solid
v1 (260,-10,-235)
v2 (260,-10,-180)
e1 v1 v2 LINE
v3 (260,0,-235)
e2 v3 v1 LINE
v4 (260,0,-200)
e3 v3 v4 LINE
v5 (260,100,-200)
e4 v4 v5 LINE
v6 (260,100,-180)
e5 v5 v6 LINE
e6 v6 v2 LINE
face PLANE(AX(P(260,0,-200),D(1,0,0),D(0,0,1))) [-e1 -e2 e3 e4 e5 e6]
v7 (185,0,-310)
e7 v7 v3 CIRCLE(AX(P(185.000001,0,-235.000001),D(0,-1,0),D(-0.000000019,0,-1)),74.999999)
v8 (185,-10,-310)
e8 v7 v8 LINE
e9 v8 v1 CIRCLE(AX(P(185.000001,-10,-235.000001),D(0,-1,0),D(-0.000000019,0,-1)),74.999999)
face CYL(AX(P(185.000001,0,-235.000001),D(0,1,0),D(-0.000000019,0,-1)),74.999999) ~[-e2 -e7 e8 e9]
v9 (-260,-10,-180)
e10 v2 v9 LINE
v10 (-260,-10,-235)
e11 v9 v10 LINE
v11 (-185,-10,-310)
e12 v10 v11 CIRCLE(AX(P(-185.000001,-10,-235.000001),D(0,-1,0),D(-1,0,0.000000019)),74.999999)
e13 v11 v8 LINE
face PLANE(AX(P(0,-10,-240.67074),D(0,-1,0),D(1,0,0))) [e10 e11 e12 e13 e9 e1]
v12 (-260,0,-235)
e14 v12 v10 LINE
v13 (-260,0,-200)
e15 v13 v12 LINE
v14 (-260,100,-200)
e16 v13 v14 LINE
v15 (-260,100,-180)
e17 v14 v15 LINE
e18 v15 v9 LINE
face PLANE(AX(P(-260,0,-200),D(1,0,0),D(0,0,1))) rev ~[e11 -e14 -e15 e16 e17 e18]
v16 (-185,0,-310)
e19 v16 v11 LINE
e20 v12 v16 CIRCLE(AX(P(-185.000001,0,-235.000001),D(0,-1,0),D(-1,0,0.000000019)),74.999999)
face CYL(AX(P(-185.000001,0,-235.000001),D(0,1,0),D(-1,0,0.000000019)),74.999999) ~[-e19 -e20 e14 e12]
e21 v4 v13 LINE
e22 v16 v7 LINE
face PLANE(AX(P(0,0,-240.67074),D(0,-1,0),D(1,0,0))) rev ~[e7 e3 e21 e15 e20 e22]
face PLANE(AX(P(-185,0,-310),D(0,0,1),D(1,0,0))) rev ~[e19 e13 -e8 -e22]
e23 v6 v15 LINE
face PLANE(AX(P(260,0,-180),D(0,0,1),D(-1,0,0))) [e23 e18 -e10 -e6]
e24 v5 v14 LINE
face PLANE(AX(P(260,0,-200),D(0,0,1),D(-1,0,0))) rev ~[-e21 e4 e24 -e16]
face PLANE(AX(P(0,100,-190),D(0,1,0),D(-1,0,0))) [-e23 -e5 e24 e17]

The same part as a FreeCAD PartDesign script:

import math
import FreeCAD as App
import Part
import Sketcher


def add_polygon(sketch, points):
    """Adds a closed chain of lines whose ends are joined by coincident constraints."""
    first, n = sketch.GeometryCount, len(points)
    for a, b in zip(points, points[1:] + points[:1]):
        sketch.addGeometry(Part.LineSegment(App.Vector(*a, 0), App.Vector(*b, 0)), False)
    for i in range(n):
        sketch.addConstraint(Sketcher.Constraint("Coincident", first + i, 2, first + (i + 1) % n, 1))

doc = App.newDocument("Part")
body = doc.addObject("PartDesign::Body", "Body")

# Sketch on XZ plane
sketch1 = body.newObject("Sketcher::SketchObject", "Sketch")
sketch1.AttachmentSupport = (doc.getObject("XZ_Plane"), [""])
sketch1.MapMode = "FlatFace"
sketch1.addGeometry(Part.LineSegment(App.Vector(260, -180, 0), App.Vector(-260, -180, 0)), False)
sketch1.addGeometry(Part.LineSegment(App.Vector(-260, -180, 0), App.Vector(-260, -235, 0)), False)
sketch1.addGeometry(Part.ArcOfCircle(Part.Circle(App.Vector(-185, -235, 0), App.Vector(0, 0, 1), 75), math.radians(180), math.radians(270)), False)
sketch1.addGeometry(Part.LineSegment(App.Vector(-185, -310, 0), App.Vector(185, -310, 0)), False)
sketch1.addGeometry(Part.ArcOfCircle(Part.Circle(App.Vector(185, -235, 0), App.Vector(0, 0, 1), 75), math.radians(-90), math.radians(0)), False)
sketch1.addGeometry(Part.LineSegment(App.Vector(260, -235, 0), App.Vector(260, -180, 0)), False)
sketch1.addConstraint(Sketcher.Constraint("Coincident", 0, 2, 1, 1))
sketch1.addConstraint(Sketcher.Constraint("Tangent", 1, 2, 2, 1))
sketch1.addConstraint(Sketcher.Constraint("Tangent", 2, 2, 3, 1))
sketch1.addConstraint(Sketcher.Constraint("Tangent", 3, 2, 4, 1))
sketch1.addConstraint(Sketcher.Constraint("Tangent", 4, 2, 5, 1))
sketch1.addConstraint(Sketcher.Constraint("Coincident", 5, 2, 0, 1))
sketch1.addConstraint(Sketcher.Constraint("Horizontal", 0))
sketch1.addConstraint(Sketcher.Constraint("Vertical", 1))
sketch1.addConstraint(Sketcher.Constraint("Horizontal", 3))
sketch1.addConstraint(Sketcher.Constraint("Vertical", 5))
sketch1.addConstraint(Sketcher.Constraint("Equal", 2, 4))
sketch1.addConstraint(Sketcher.Constraint("Radius", 2, 74.999999))
sketch1.addConstraint(Sketcher.Constraint("DistanceX", 0, 2, 0, 1, 520.0))
sketch1.addConstraint(Sketcher.Constraint("DistanceY", 1, 2, 1, 1, 55.0))
sketch1.addConstraint(Sketcher.Constraint("DistanceX", 2, 3, -1, 1, 185.000001))
sketch1.addConstraint(Sketcher.Constraint("DistanceY", 2, 3, -1, 1, 235.000001))
pad1 = body.newObject("PartDesign::Pad", "Pad")
pad1.Profile = sketch1
pad1.Length = 10

# Sketch on XZ plane
sketch2 = body.newObject("Sketcher::SketchObject", "Sketch001")
sketch2.AttachmentSupport = (doc.getObject("XZ_Plane"), [""])
sketch2.MapMode = "FlatFace"
add_polygon(sketch2, [(260, -180), (260, -200), (-260, -200), (-260, -180)])  # lines 0-3
sketch2.addConstraint(Sketcher.Constraint("Vertical", 0))
sketch2.addConstraint(Sketcher.Constraint("Horizontal", 1))
sketch2.addConstraint(Sketcher.Constraint("Vertical", 2))
sketch2.addConstraint(Sketcher.Constraint("Horizontal", 3))
sketch2.addConstraint(Sketcher.Constraint("DistanceX", 1, 2, 1, 1, 520.0))
sketch2.addConstraint(Sketcher.Constraint("DistanceY", 0, 2, 0, 1, 20.0))
sketch2.addConstraint(Sketcher.Constraint("DistanceX", -1, 1, 0, 2, 260.0))
sketch2.addConstraint(Sketcher.Constraint("DistanceY", 0, 2, -1, 1, 200.0))
pad2 = body.newObject("PartDesign::Pad", "Pad001")
pad2.Profile = sketch2
pad2.Length = 100
pad2.Reversed = True

doc.recompute()
